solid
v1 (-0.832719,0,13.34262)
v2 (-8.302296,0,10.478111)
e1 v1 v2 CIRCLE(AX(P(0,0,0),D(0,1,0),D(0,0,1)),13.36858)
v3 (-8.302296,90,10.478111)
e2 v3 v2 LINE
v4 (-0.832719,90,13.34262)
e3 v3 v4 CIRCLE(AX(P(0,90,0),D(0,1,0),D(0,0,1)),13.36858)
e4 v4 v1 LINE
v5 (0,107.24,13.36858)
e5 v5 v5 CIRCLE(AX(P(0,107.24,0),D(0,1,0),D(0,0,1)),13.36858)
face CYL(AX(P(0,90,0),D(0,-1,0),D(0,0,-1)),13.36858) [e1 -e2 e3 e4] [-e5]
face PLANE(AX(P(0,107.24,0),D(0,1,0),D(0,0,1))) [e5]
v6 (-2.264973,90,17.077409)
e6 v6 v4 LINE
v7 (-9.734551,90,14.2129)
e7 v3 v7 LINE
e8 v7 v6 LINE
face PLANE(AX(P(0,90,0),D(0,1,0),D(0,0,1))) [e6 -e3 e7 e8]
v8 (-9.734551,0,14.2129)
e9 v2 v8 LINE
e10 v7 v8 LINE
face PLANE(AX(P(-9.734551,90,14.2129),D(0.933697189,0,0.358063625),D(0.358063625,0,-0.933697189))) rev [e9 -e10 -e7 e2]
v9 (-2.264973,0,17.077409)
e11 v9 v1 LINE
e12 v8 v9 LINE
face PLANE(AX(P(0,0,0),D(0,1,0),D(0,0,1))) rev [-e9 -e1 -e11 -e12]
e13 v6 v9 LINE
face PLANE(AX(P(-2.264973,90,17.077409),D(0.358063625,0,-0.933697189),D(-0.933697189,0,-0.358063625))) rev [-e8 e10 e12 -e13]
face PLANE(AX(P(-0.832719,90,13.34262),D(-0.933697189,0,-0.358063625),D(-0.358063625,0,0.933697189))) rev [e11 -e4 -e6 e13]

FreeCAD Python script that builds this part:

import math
import FreeCAD as App
import Part
import Sketcher
from FreeCAD import Vector

doc = App.newDocument("Part")
params = doc.addObject("Spreadsheet::Sheet", "Params")
for row, (alias, value) in enumerate([
    ("sketch1_length", "4 mm"),
    ("sketch1_length2", "8 mm"),
    ("pad1_length", "90 mm"),
    ("pad2_length", "550 mm"),
    ("sketch3_diameter", "60 mm"),
    ("pocket1_length", "532.76 mm"),
], start=1):
    params.set(f"A{row}", alias)
    params.set(f"B{row}", "=" + value)
    params.setAlias(f"B{row}", alias)

body = doc.addObject("PartDesign::Body", "Body")

sketch1 = body.newObject("Sketcher::SketchObject", "Sketch")
sketch1.AttachmentSupport = (doc.getObject("XZ_Plane"), [""])
sketch1.MapMode = "FlatFace"
sketch1.addGeometry([
    Part.LineSegment(Vector(-2.3, 17.1, 0), Vector(-0.8, 13.3, 0)),
    Part.ArcOfCircle(Part.Circle(Vector(0, 0, 0), Vector(0, 0, 1), 13.4), math.radians(128), math.radians(454)),
    Part.LineSegment(Vector(-8.3, 10.5, 0), Vector(-9.7, 14.2, 0)),
    Part.LineSegment(Vector(-9.7, 14.2, 0), Vector(-2.3, 17.1, 0)),
], False)
sketch1.addConstraint([
    Sketcher.Constraint("Coincident", 0, 2, 1, 2),
    Sketcher.Constraint("Coincident", 1, 1, 2, 1),
    Sketcher.Constraint("Coincident", 2, 2, 3, 1),
    Sketcher.Constraint("Coincident", 3, 2, 0, 1),
    Sketcher.Constraint("Coincident", 1, 3, -1, 1),
    Sketcher.Constraint("Parallel", 0, 2),
    Sketcher.Constraint("Perpendicular", 2, 3),
    Sketcher.Constraint("Equal", 0, 2),
    Sketcher.Constraint("Distance", 0, 4.0),
    Sketcher.Constraint("Distance", 3, 8.0),
    Sketcher.Constraint("Radius", 1, 13.36858),
    Sketcher.Constraint("DistanceY", -1, 1, 2, 2, 14.2129),
])
sketch1.setExpression("Constraints[8]", "Params.sketch1_length")
sketch1.setExpression("Constraints[9]", "Params.sketch1_length2")
pad1 = body.newObject("PartDesign::Pad", "Pad")
pad1.Profile = sketch1
pad1.setExpression("Length", "Params.pad1_length")
pad1.Reversed = True

sketch2 = body.newObject("Sketcher::SketchObject", "Sketch001")
sketch2.AttachmentSupport = (doc.getObject("XZ_Plane"), [""])
sketch2.MapMode = "FlatFace"
sketch2.AttachmentOffset = App.Placement(Vector(0, 0, -90), App.Rotation())
sketch2.addGeometry(Part.Circle(Vector(0, 0, 0), Vector(0, 0, 1), 13), False)
sketch2.addConstraint([
    Sketcher.Constraint("Coincident", 0, 3, -1, 1),
    Sketcher.Constraint("Diameter", 0, 26.73716),
])
pad2 = body.newObject("PartDesign::Pad", "Pad001")
pad2.Profile = sketch2
pad2.setExpression("Length", "Params.pad2_length")
pad2.Reversed = True

sketch3 = body.newObject("Sketcher::SketchObject", "Sketch002")
sketch3.AttachmentSupport = (doc.getObject("XZ_Plane"), [""])
sketch3.MapMode = "FlatFace"
sketch3.AttachmentOffset = App.Placement(Vector(0, 0, -640), App.Rotation())
sketch3.addGeometry(Part.Circle(Vector(0, 0, 0), Vector(0, 0, 1), 30), False)
sketch3.addConstraint([
    Sketcher.Constraint("Coincident", 0, 3, -1, 1),
    Sketcher.Constraint("Diameter", 0, 60.0),
])
sketch3.setExpression("Constraints[1]", "Params.sketch3_diameter")
pocket1 = body.newObject("PartDesign::Pocket", "Pocket")
pocket1.Profile = sketch3
pocket1.setExpression("Length", "Params.pocket1_length")
pocket1.Reversed = True

doc.recompute()
